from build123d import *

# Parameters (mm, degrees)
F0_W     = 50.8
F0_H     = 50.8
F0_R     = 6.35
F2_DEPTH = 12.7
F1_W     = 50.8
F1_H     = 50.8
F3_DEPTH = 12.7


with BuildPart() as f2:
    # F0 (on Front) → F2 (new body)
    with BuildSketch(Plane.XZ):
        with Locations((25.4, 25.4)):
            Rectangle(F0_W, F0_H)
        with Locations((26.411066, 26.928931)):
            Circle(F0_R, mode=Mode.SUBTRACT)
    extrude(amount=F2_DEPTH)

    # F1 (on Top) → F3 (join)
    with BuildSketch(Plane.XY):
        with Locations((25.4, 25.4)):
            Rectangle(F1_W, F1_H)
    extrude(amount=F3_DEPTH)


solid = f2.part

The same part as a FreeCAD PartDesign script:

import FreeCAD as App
import Part
import Sketcher
from FreeCAD import Vector
Q = App.Units.Quantity


def add_polygon(sketch, points):
    """Adds a closed chain of lines whose ends are joined by coincident constraints."""
    first, n = sketch.GeometryCount, len(points)
    for a, b in zip(points, points[1:] + points[:1]):
        sketch.addGeometry(Part.LineSegment(App.Vector(*a, 0), App.Vector(*b, 0)), False)
    for i in range(n):
        sketch.addConstraint(Sketcher.Constraint("Coincident", first + i, 2, first + (i + 1) % n, 1))

doc = App.newDocument("Part")
params = doc.addObject("Spreadsheet::Sheet", "Params")
for row, (alias, value) in enumerate([
    ("sketch1_diameter", "0.5 in"),
    ("sketch1_width", "2 in"),
    ("pad1_length", "0.5 in"),
    ("sketch2_width", "2 in"),
    ("pad2_length", "0.5 in"),
], start=1):
    params.set(f"A{row}", alias)
    params.set(f"B{row}", "=" + value)
    params.setAlias(f"B{row}", alias)

body = doc.addObject("PartDesign::Body", "Body")

# Sketch on XZ plane
sketch1 = body.newObject("Sketcher::SketchObject", "Sketch")
sketch1.AttachmentSupport = (doc.getObject("XZ_Plane"), [""])
sketch1.MapMode = "FlatFace"
add_polygon(sketch1, [(0, 51), (0, 0), (51, 0), (51, 51)])  # lines 0-3
sketch1.addGeometry(Part.Circle(Vector(26, 27, 0), Vector(0, 0, 1), 6), False)  # 4
sketch1.addConstraint([
    Sketcher.Constraint("Vertical", 0),
    Sketcher.Constraint("Horizontal", 1),
    Sketcher.Constraint("Vertical", 2),
    Sketcher.Constraint("Horizontal", 3),
    Sketcher.Constraint("Coincident", 0, 2, -1, 1),
    Sketcher.Constraint("Equal", 3, 0),
    Sketcher.Constraint("Diameter", 4, Q("0.5 in")),
    Sketcher.Constraint("DistanceX", 1, 1, 1, 2, Q("2 in")),
    Sketcher.Constraint("DistanceY", -1, 1, 4, 3, 26.928931),
    Sketcher.Constraint("DistanceX", -1, 1, 4, 3, 26.411066),
])
sketch1.setExpression("Constraints[10]", "Params.sketch1_diameter")
sketch1.setExpression("Constraints[11]", "Params.sketch1_width")
pad1 = body.newObject("PartDesign::Pad", "Pad")
pad1.Profile = sketch1
pad1.setExpression("Length", "Params.pad1_length")

# Sketch on XY plane
sketch2 = body.newObject("Sketcher::SketchObject", "Sketch001")
sketch2.AttachmentSupport = (doc.getObject("XY_Plane"), [""])
sketch2.MapMode = "FlatFace"
add_polygon(sketch2, [(0, 51), (0, 0), (51, 0), (51, 51)])  # lines 0-3
sketch2.addConstraint([
    Sketcher.Constraint("Vertical", 0),
    Sketcher.Constraint("Horizontal", 1),
    Sketcher.Constraint("Vertical", 2),
    Sketcher.Constraint("Horizontal", 3),
    Sketcher.Constraint("Coincident", 0, 2, -1, 1),
    Sketcher.Constraint("Equal", 3, 0),
    Sketcher.Constraint("DistanceX", 1, 1, 1, 2, Q("2 in")),
])
sketch2.setExpression("Constraints[10]", "Params.sketch2_width")
pad2 = body.newObject("PartDesign::Pad", "Pad001")
pad2.Profile = sketch2
pad2.setExpression("Length", "Params.pad2_length")

doc.recompute()
